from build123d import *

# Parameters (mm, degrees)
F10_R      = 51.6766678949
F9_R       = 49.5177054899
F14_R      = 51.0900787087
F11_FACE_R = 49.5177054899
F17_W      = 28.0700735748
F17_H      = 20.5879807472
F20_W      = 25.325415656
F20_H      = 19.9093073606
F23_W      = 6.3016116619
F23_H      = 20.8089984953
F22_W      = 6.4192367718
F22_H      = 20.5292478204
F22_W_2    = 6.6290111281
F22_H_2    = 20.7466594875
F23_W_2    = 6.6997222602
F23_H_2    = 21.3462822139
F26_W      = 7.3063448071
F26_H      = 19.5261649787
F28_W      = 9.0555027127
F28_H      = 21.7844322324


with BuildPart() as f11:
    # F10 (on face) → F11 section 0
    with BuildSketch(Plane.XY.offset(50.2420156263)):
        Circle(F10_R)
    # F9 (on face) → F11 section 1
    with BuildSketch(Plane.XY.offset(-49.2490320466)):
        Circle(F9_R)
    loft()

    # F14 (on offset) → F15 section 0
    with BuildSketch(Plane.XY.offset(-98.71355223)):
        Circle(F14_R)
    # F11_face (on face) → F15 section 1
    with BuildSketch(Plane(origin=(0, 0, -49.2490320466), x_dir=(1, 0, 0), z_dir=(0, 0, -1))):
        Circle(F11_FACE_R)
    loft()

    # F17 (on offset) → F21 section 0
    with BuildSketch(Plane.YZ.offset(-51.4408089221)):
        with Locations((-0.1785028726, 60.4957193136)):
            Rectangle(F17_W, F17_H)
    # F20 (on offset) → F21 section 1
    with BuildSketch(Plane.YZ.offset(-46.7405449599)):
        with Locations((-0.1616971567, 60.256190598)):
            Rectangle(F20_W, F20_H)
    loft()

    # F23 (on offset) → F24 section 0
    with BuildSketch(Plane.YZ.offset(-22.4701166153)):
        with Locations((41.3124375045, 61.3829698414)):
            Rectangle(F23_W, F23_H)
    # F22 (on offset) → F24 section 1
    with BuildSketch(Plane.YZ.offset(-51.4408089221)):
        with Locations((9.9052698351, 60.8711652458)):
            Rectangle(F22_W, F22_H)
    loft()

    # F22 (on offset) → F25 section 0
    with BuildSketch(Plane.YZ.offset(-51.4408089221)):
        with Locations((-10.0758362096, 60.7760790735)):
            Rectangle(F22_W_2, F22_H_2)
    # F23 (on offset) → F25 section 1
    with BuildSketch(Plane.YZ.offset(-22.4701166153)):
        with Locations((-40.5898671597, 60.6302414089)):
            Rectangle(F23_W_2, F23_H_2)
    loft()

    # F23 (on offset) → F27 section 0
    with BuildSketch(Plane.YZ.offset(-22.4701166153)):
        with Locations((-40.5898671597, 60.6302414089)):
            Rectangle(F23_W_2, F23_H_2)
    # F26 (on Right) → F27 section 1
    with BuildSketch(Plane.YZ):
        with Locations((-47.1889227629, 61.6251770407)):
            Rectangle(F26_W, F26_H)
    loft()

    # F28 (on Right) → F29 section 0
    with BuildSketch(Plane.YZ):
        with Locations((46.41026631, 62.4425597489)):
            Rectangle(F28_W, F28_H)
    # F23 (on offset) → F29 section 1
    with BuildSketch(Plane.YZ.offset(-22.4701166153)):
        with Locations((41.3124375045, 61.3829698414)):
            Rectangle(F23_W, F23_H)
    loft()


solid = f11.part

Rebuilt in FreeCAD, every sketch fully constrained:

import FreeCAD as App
import Part
import Sketcher

V = App.Vector
Q = App.Units.Quantity


def add_polygon(sketch, points):
    """Adds a closed chain of lines whose ends are joined by coincident constraints."""
    first, n = sketch.GeometryCount, len(points)
    for a, b in zip(points, points[1:] + points[:1]):
        sketch.addGeometry(Part.LineSegment(App.Vector(*a, 0), App.Vector(*b, 0)), False)
    for i in range(n):
        sketch.addConstraint(Sketcher.Constraint("Coincident", first + i, 2, first + (i + 1) % n, 1))

doc = App.newDocument("Part")
body = doc.addObject("PartDesign::Body", "Body")

sketch1 = doc.addObject("Sketcher::SketchObject", "Sketch")
body.addObject(sketch1)
sketch1.AttachmentSupport = (doc.XY_Plane, [""])
sketch1.MapMode = "FlatFace"
sketch1.AttachmentOffset = App.Placement(V(0, 0, 50.242016), App.Rotation())
sketch1.addGeometry(Part.Circle(V(0, 0, 0), V(0, 0, 1), 51.676668), False)
sketch1.addConstraint([
    Sketcher.Constraint("Coincident", 0, 3, -1, 1),
    Sketcher.Constraint("Diameter", 0, Q("103.353336 mm")),
])

sketch2 = doc.addObject("Sketcher::SketchObject", "Sketch001")
body.addObject(sketch2)
sketch2.AttachmentSupport = (doc.XY_Plane, [""])
sketch2.MapMode = "FlatFace"
sketch2.AttachmentOffset = App.Placement(V(0, 0, -49.249032), App.Rotation())
sketch2.addGeometry(Part.Circle(V(0, 0, 0), V(0, 0, 1), 49.517705), False)
sketch2.addConstraint([
    Sketcher.Constraint("Coincident", 0, 3, -1, 1),
    Sketcher.Constraint("Diameter", 0, Q("99.035411 mm")),
])

additiveloft = doc.addObject("PartDesign::AdditiveLoft", "AdditiveLoft")
body.addObject(additiveloft)
additiveloft.Profile = sketch1
additiveloft.Sections = [sketch2]

sketch3 = doc.addObject("Sketcher::SketchObject", "Sketch002")
body.addObject(sketch3)
sketch3.AttachmentSupport = (doc.XY_Plane, [""])
sketch3.MapMode = "FlatFace"
sketch3.AttachmentOffset = App.Placement(V(0, 0, -98.713552), App.Rotation())
sketch3.addGeometry(Part.Circle(V(0, 0, 0), V(0, 0, 1), 51.090079), False)
sketch3.addConstraint([
    Sketcher.Constraint("Coincident", 0, 3, -1, 1),
    Sketcher.Constraint("Diameter", 0, Q("102.180157 mm")),
])

sketch4 = doc.addObject("Sketcher::SketchObject", "Sketch003")
body.addObject(sketch4)
sketch4.AttachmentSupport = (doc.XY_Plane, [""])
sketch4.MapMode = "FlatFace"
sketch4.AttachmentOffset = App.Placement(V(0, 0, -49.249032), App.Rotation())
sketch4.addGeometry(Part.Circle(V(0, 0, 0), V(0, 0, 1), 49.517705), False)
sketch4.addConstraint([
    Sketcher.Constraint("Coincident", 0, 3, -1, 1),
    Sketcher.Constraint("Diameter", 0, Q("99.035411 mm")),
])

additiveloft2 = doc.addObject("PartDesign::AdditiveLoft", "AdditiveLoft001")
body.addObject(additiveloft2)
additiveloft2.Profile = sketch3
additiveloft2.Sections = [sketch4]

sketch5 = doc.addObject("Sketcher::SketchObject", "Sketch004")
body.addObject(sketch5)
sketch5.AttachmentSupport = (doc.YZ_Plane, [""])
sketch5.MapMode = "FlatFace"
sketch5.AttachmentOffset = App.Placement(V(0, 0, -51.440809), App.Rotation())
add_polygon(sketch5, [(-14.21354, 70.78971), (-14.21354, 50.201729), (13.856534, 50.201729), (13.856534, 70.78971)])
sketch5.addConstraint([
    Sketcher.Constraint("Vertical", 0),
    Sketcher.Constraint("Horizontal", 1),
    Sketcher.Constraint("Vertical", 2),
    Sketcher.Constraint("Horizontal", 3),
    Sketcher.Constraint("DistanceY", 0, 2, 0, 1, Q("20.587981 mm")),
    Sketcher.Constraint("DistanceX", 1, 1, 1, 2, Q("28.070074 mm")),
    Sketcher.Constraint("DistanceX", 0, 2, -1, 1, Q("14.21354 mm")),
    Sketcher.Constraint("DistanceY", -1, 1, 0, 2, Q("50.201729 mm")),
])

sketch6 = doc.addObject("Sketcher::SketchObject", "Sketch005")
body.addObject(sketch6)
sketch6.AttachmentSupport = (doc.YZ_Plane, [""])
sketch6.MapMode = "FlatFace"
sketch6.AttachmentOffset = App.Placement(V(0, 0, -46.740545), App.Rotation())
add_polygon(sketch6, [(-12.824405, 70.210844), (-12.824405, 50.301537), (12.501011, 50.301537), (12.501011, 70.210844)])
sketch6.addConstraint([
    Sketcher.Constraint("Vertical", 0),
    Sketcher.Constraint("Horizontal", 1),
    Sketcher.Constraint("Vertical", 2),
    Sketcher.Constraint("Horizontal", 3),
    Sketcher.Constraint("DistanceX", 1, 1, 1, 2, Q("25.325416 mm")),
    Sketcher.Constraint("DistanceY", 0, 2, 0, 1, Q("19.909307 mm")),
    Sketcher.Constraint("DistanceX", -1, 1, 1, 2, Q("12.501011 mm")),
    Sketcher.Constraint("DistanceY", -1, 1, 0, 2, Q("50.301537 mm")),
])

additiveloft3 = doc.addObject("PartDesign::AdditiveLoft", "AdditiveLoft002")
body.addObject(additiveloft3)
additiveloft3.Profile = sketch5
additiveloft3.Sections = [sketch6]

sketch7 = doc.addObject("Sketcher::SketchObject", "Sketch006")
body.addObject(sketch7)
sketch7.AttachmentSupport = (doc.YZ_Plane, [""])
sketch7.MapMode = "FlatFace"
sketch7.AttachmentOffset = App.Placement(V(0, 0, -22.470117), App.Rotation())
add_polygon(sketch7, [(38.161632, 71.787469), (38.161632, 50.978471), (44.463243, 50.978471), (44.463243, 71.787469)])
sketch7.addConstraint([
    Sketcher.Constraint("Vertical", 0),
    Sketcher.Constraint("Horizontal", 1),
    Sketcher.Constraint("Vertical", 2),
    Sketcher.Constraint("Horizontal", 3),
    Sketcher.Constraint("DistanceY", 0, 2, 0, 1, Q("20.808998 mm")),
    Sketcher.Constraint("DistanceX", 1, 1, 1, 2, Q("6.301612 mm")),
    Sketcher.Constraint("DistanceX", -1, 1, 0, 2, Q("38.161632 mm")),
    Sketcher.Constraint("DistanceY", -1, 1, 0, 2, Q("50.978471 mm")),
])

sketch8 = doc.addObject("Sketcher::SketchObject", "Sketch007")
body.addObject(sketch8)
sketch8.AttachmentSupport = (doc.YZ_Plane, [""])
sketch8.MapMode = "FlatFace"
sketch8.AttachmentOffset = App.Placement(V(0, 0, -51.440809), App.Rotation())
add_polygon(sketch8, [(6.695651, 71.135789), (6.695651, 50.606541), (13.114888, 50.606541), (13.114888, 71.135789)])
sketch8.addConstraint([
    Sketcher.Constraint("Vertical", 0),
    Sketcher.Constraint("Horizontal", 1),
    Sketcher.Constraint("Vertical", 2),
    Sketcher.Constraint("Horizontal", 3),
    Sketcher.Constraint("DistanceX", 1, 1, 1, 2, Q("6.419237 mm")),
    Sketcher.Constraint("DistanceY", 0, 2, 0, 1, Q("20.529248 mm")),
    Sketcher.Constraint("DistanceX", -1, 1, 0, 2, Q("6.695651 mm")),
    Sketcher.Constraint("DistanceY", -1, 1, 0, 2, Q("50.606541 mm")),
])

additiveloft4 = doc.addObject("PartDesign::AdditiveLoft", "AdditiveLoft003")
body.addObject(additiveloft4)
additiveloft4.Profile = sketch7
additiveloft4.Sections = [sketch8]

sketch9 = doc.addObject("Sketcher::SketchObject", "Sketch008")
body.addObject(sketch9)
sketch9.AttachmentSupport = (doc.YZ_Plane, [""])
sketch9.MapMode = "FlatFace"
sketch9.AttachmentOffset = App.Placement(V(0, 0, -51.440809), App.Rotation())
add_polygon(sketch9, [(-13.390342, 71.149409), (-13.390342, 50.402749), (-6.761331, 50.402749), (-6.761331, 71.149409)])
sketch9.addConstraint([
    Sketcher.Constraint("Vertical", 0),
    Sketcher.Constraint("Horizontal", 1),
    Sketcher.Constraint("Vertical", 2),
    Sketcher.Constraint("Horizontal", 3),
    Sketcher.Constraint("DistanceX", 1, 1, 1, 2, Q("6.629011 mm")),
    Sketcher.Constraint("DistanceY", 0, 2, 0, 1, Q("20.746659 mm")),
    Sketcher.Constraint("DistanceX", 0, 2, -1, 1, Q("13.390342 mm")),
    Sketcher.Constraint("DistanceY", -1, 1, 0, 2, Q("50.402749 mm")),
])

sketch10 = doc.addObject("Sketcher::SketchObject", "Sketch009")
body.addObject(sketch10)
sketch10.AttachmentSupport = (doc.YZ_Plane, [""])
sketch10.MapMode = "FlatFace"
sketch10.AttachmentOffset = App.Placement(V(0, 0, -22.470117), App.Rotation())
add_polygon(sketch10, [(-43.939728, 71.303383), (-43.939728, 49.9571), (-37.240006, 49.9571), (-37.240006, 71.303383)])
sketch10.addConstraint([
    Sketcher.Constraint("Vertical", 0),
    Sketcher.Constraint("Horizontal", 1),
    Sketcher.Constraint("Vertical", 2),
    Sketcher.Constraint("Horizontal", 3),
    Sketcher.Constraint("DistanceY", -1, 1, 0, 2, Q("49.9571 mm")),
    Sketcher.Constraint("DistanceX", 1, 1, 1, 2, Q("6.699722 mm")),
    Sketcher.Constraint("DistanceY", 0, 2, 0, 1, Q("21.346282 mm")),
    Sketcher.Constraint("DistanceX", 0, 2, -1, 1, Q("43.939728 mm")),
])

additiveloft5 = doc.addObject("PartDesign::AdditiveLoft", "AdditiveLoft004")
body.addObject(additiveloft5)
additiveloft5.Profile = sketch9
additiveloft5.Sections = [sketch10]

sketch11 = doc.addObject("Sketcher::SketchObject", "Sketch010")
body.addObject(sketch11)
sketch11.AttachmentSupport = (doc.YZ_Plane, [""])
sketch11.MapMode = "FlatFace"
sketch11.AttachmentOffset = App.Placement(V(0, 0, -22.470117), App.Rotation())
add_polygon(sketch11, [(-43.939728, 71.303383), (-43.939728, 49.9571), (-37.240006, 49.9571), (-37.240006, 71.303383)])
sketch11.addConstraint([
    Sketcher.Constraint("Vertical", 0),
    Sketcher.Constraint("Horizontal", 1),
    Sketcher.Constraint("Vertical", 2),
    Sketcher.Constraint("Horizontal", 3),
    Sketcher.Constraint("DistanceY", -1, 1, 0, 2, Q("49.9571 mm")),
    Sketcher.Constraint("DistanceX", 1, 1, 1, 2, Q("6.699722 mm")),
    Sketcher.Constraint("DistanceY", 0, 2, 0, 1, Q("21.346282 mm")),
    Sketcher.Constraint("DistanceX", 0, 2, -1, 1, Q("43.939728 mm")),
])

sketch12 = doc.addObject("Sketcher::SketchObject", "Sketch011")
body.addObject(sketch12)
sketch12.AttachmentSupport = (doc.YZ_Plane, [""])
sketch12.MapMode = "FlatFace"
add_polygon(sketch12, [(-50.842095, 71.38826), (-50.842095, 51.862095), (-43.53575, 51.862095), (-43.53575, 71.38826)])
sketch12.addConstraint([
    Sketcher.Constraint("Vertical", 0),
    Sketcher.Constraint("Horizontal", 1),
    Sketcher.Constraint("Vertical", 2),
    Sketcher.Constraint("Horizontal", 3),
    Sketcher.Constraint("DistanceX", 1, 1, 1, 2, Q("7.306345 mm")),
    Sketcher.Constraint("DistanceY", 0, 2, 0, 1, Q("19.526165 mm")),
    Sketcher.Constraint("DistanceX", 1, 2, -1, 1, Q("43.53575 mm")),
    Sketcher.Constraint("DistanceY", -1, 1, 2, 2, Q("71.38826 mm")),
])

additiveloft6 = doc.addObject("PartDesign::AdditiveLoft", "AdditiveLoft005")
body.addObject(additiveloft6)
additiveloft6.Profile = sketch11
additiveloft6.Sections = [sketch12]

sketch13 = doc.addObject("Sketcher::SketchObject", "Sketch012")
body.addObject(sketch13)
sketch13.AttachmentSupport = (doc.YZ_Plane, [""])
sketch13.MapMode = "FlatFace"
add_polygon(sketch13, [(41.882515, 73.334776), (41.882515, 51.550344), (50.938018, 51.550344), (50.938018, 73.334776)])
sketch13.addConstraint([
    Sketcher.Constraint("Vertical", 0),
    Sketcher.Constraint("Horizontal", 1),
    Sketcher.Constraint("Vertical", 2),
    Sketcher.Constraint("Horizontal", 3),
    Sketcher.Constraint("DistanceX", 1, 1, 1, 2, Q("9.055503 mm")),
    Sketcher.Constraint("DistanceY", 0, 2, 0, 1, Q("21.784432 mm")),
    Sketcher.Constraint("DistanceX", -1, 1, 0, 2, Q("41.882515 mm")),
    Sketcher.Constraint("DistanceY", -1, 1, 0, 2, Q("51.550344 mm")),
])

sketch14 = doc.addObject("Sketcher::SketchObject", "Sketch013")
body.addObject(sketch14)
sketch14.AttachmentSupport = (doc.YZ_Plane, [""])
sketch14.MapMode = "FlatFace"
sketch14.AttachmentOffset = App.Placement(V(0, 0, -22.470117), App.Rotation())
add_polygon(sketch14, [(38.161632, 71.787469), (38.161632, 50.978471), (44.463243, 50.978471), (44.463243, 71.787469)])
sketch14.addConstraint([
    Sketcher.Constraint("Vertical", 0),
    Sketcher.Constraint("Horizontal", 1),
    Sketcher.Constraint("Vertical", 2),
    Sketcher.Constraint("Horizontal", 3),
    Sketcher.Constraint("DistanceY", 0, 2, 0, 1, Q("20.808998 mm")),
    Sketcher.Constraint("DistanceX", 1, 1, 1, 2, Q("6.301612 mm")),
    Sketcher.Constraint("DistanceX", -1, 1, 0, 2, Q("38.161632 mm")),
    Sketcher.Constraint("DistanceY", -1, 1, 0, 2, Q("50.978471 mm")),
])

additiveloft7 = doc.addObject("PartDesign::AdditiveLoft", "AdditiveLoft006")
body.addObject(additiveloft7)
additiveloft7.Profile = sketch13
additiveloft7.Sections = [sketch14]

doc.recompute()
